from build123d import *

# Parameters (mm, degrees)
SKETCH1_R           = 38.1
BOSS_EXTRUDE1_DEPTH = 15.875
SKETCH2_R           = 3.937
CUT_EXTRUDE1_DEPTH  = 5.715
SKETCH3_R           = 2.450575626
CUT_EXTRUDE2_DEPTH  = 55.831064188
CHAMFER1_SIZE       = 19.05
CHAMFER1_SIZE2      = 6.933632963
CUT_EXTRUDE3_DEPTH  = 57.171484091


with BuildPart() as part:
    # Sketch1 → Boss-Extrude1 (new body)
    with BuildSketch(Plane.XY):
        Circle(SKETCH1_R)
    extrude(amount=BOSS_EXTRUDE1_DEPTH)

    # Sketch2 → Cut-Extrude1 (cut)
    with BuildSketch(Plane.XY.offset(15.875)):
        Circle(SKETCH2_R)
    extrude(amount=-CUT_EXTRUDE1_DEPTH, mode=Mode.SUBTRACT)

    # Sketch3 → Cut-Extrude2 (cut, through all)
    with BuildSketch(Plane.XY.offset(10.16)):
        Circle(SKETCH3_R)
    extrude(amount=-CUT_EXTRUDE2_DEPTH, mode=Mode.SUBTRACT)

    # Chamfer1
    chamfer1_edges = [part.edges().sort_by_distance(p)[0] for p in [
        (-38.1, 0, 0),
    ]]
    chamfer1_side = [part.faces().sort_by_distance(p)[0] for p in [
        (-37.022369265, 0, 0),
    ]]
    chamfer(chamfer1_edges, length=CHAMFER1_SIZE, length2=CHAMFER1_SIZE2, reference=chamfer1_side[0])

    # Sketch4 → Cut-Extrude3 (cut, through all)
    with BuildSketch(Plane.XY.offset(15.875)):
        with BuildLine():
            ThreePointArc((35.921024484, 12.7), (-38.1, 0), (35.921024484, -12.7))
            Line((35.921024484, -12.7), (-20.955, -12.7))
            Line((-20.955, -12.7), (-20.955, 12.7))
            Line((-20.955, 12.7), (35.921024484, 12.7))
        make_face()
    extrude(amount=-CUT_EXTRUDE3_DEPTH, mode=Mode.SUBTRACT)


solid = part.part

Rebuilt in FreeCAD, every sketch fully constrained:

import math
import FreeCAD as App
import Part
import Sketcher

V = App.Vector
Q = App.Units.Quantity


def edges_at(feature, points):
    """Names of the edges that pass closest to the given points."""
    edges = feature.Shape.Edges
    near = lambda p: min(range(len(edges)), key=lambda i: edges[i].distToShape(Part.Vertex(*p))[0])
    return sorted({f"Edge{near(p) + 1}" for p in points})

doc = App.newDocument("Part")
body = doc.addObject("PartDesign::Body", "Body")

# Sketch on XY plane
sketch1 = doc.addObject("Sketcher::SketchObject", "Sketch")
body.addObject(sketch1)
sketch1.AttachmentSupport = (doc.XY_Plane, [""])
sketch1.MapMode = "FlatFace"
sketch1.addGeometry(Part.Circle(V(0, 0, 0), V(0, 0, 1), 38), False)
sketch1.addConstraint([
    Sketcher.Constraint("Coincident", 0, 3, -1, 1),
    Sketcher.Constraint("Diameter", 0, Q("3 in")),
])
pad1 = doc.addObject("PartDesign::Pad", "Pad")
body.addObject(pad1)
pad1.Profile = sketch1
pad1.Length = Q("0.625 in")

# Sketch on XY plane
sketch2 = doc.addObject("Sketcher::SketchObject", "Sketch001")
body.addObject(sketch2)
sketch2.AttachmentSupport = (doc.XY_Plane, [""])
sketch2.MapMode = "FlatFace"
sketch2.AttachmentOffset = App.Placement(V(0, 0, 0.625 * 25.4), App.Rotation())
sketch2.addGeometry(Part.Circle(V(0, 0, 0), V(0, 0, 1), 3.9), False)
sketch2.addConstraint([
    Sketcher.Constraint("Coincident", 0, 3, -1, 1),
    Sketcher.Constraint("Diameter", 0, Q("0.31 in")),
])
pocket1 = doc.addObject("PartDesign::Pocket", "Pocket")
body.addObject(pocket1)
pocket1.Profile = sketch2
pocket1.Length = Q("0.225 in")

# Sketch on XY plane
sketch3 = doc.addObject("Sketcher::SketchObject", "Sketch002")
body.addObject(sketch3)
sketch3.AttachmentSupport = (doc.XY_Plane, [""])
sketch3.MapMode = "FlatFace"
sketch3.AttachmentOffset = App.Placement(V(0, 0, 0.4 * 25.4), App.Rotation())
sketch3.addGeometry(Part.Circle(V(0, 0, 0), V(0, 0, 1), 2.5), False)
sketch3.addConstraint([
    Sketcher.Constraint("Coincident", 0, 3, -1, 1),
    Sketcher.Constraint("Diameter", 0, Q("4.901151 mm")),
])
pocket2 = doc.addObject("PartDesign::Pocket", "Pocket001")
body.addObject(pocket2)
pocket2.Profile = sketch3
pocket2.Type = "ThroughAll"
doc.recompute()

chamfer = doc.addObject("PartDesign::Chamfer", "Chamfer")
body.addObject(chamfer)
chamfer.Base = (pocket2, edges_at(pocket2, [(-38.1, 0, 0)]))
chamfer.ChamferType = "Two distances"
chamfer.Size = Q("0.75 in")
chamfer.Size2 = 6.933633
chamfer.FlipDirection = True

# Sketch on XY plane
sketch4 = doc.addObject("Sketcher::SketchObject", "Sketch003")
body.addObject(sketch4)
sketch4.AttachmentSupport = (doc.XY_Plane, [""])
sketch4.MapMode = "FlatFace"
sketch4.AttachmentOffset = App.Placement(V(0, 0, 0.625 * 25.4), App.Rotation())
sketch4.addGeometry([
    Part.ArcOfCircle(Part.Circle(V(0, 0, 0), V(0, 0, 1), 38), math.radians(19), math.radians(341)),
    Part.LineSegment(V(36, -13, 0), V(-21, -13, 0)),
    Part.LineSegment(V(-21, -13, 0), V(-21, 13, 0)),
    Part.LineSegment(V(-21, 13, 0), V(36, 13, 0)),
], False)
sketch4.addConstraint([
    Sketcher.Constraint("Coincident", 0, 2, 1, 1),
    Sketcher.Constraint("Coincident", 1, 2, 2, 1),
    Sketcher.Constraint("Coincident", 2, 2, 3, 1),
    Sketcher.Constraint("Coincident", 3, 2, 0, 1),
    Sketcher.Constraint("Horizontal", 1),
    Sketcher.Constraint("Vertical", 2),
    Sketcher.Constraint("Horizontal", 3),
    Sketcher.Constraint("Coincident", 0, 3, -1, 1),
    Sketcher.Constraint("Vertical", 0, 2, 3, 2),
    Sketcher.Constraint("Radius", 0, Q("1.5 in")),
    Sketcher.Constraint("DistanceY", 2, 1, 2, 2, Q("1 in")),
    Sketcher.Constraint("DistanceX", 1, 2, -1, 1, Q("0.825 in")),
])
pocket3 = doc.addObject("PartDesign::Pocket", "Pocket002")
body.addObject(pocket3)
pocket3.Profile = sketch4
pocket3.Type = "ThroughAll"

doc.recompute()
